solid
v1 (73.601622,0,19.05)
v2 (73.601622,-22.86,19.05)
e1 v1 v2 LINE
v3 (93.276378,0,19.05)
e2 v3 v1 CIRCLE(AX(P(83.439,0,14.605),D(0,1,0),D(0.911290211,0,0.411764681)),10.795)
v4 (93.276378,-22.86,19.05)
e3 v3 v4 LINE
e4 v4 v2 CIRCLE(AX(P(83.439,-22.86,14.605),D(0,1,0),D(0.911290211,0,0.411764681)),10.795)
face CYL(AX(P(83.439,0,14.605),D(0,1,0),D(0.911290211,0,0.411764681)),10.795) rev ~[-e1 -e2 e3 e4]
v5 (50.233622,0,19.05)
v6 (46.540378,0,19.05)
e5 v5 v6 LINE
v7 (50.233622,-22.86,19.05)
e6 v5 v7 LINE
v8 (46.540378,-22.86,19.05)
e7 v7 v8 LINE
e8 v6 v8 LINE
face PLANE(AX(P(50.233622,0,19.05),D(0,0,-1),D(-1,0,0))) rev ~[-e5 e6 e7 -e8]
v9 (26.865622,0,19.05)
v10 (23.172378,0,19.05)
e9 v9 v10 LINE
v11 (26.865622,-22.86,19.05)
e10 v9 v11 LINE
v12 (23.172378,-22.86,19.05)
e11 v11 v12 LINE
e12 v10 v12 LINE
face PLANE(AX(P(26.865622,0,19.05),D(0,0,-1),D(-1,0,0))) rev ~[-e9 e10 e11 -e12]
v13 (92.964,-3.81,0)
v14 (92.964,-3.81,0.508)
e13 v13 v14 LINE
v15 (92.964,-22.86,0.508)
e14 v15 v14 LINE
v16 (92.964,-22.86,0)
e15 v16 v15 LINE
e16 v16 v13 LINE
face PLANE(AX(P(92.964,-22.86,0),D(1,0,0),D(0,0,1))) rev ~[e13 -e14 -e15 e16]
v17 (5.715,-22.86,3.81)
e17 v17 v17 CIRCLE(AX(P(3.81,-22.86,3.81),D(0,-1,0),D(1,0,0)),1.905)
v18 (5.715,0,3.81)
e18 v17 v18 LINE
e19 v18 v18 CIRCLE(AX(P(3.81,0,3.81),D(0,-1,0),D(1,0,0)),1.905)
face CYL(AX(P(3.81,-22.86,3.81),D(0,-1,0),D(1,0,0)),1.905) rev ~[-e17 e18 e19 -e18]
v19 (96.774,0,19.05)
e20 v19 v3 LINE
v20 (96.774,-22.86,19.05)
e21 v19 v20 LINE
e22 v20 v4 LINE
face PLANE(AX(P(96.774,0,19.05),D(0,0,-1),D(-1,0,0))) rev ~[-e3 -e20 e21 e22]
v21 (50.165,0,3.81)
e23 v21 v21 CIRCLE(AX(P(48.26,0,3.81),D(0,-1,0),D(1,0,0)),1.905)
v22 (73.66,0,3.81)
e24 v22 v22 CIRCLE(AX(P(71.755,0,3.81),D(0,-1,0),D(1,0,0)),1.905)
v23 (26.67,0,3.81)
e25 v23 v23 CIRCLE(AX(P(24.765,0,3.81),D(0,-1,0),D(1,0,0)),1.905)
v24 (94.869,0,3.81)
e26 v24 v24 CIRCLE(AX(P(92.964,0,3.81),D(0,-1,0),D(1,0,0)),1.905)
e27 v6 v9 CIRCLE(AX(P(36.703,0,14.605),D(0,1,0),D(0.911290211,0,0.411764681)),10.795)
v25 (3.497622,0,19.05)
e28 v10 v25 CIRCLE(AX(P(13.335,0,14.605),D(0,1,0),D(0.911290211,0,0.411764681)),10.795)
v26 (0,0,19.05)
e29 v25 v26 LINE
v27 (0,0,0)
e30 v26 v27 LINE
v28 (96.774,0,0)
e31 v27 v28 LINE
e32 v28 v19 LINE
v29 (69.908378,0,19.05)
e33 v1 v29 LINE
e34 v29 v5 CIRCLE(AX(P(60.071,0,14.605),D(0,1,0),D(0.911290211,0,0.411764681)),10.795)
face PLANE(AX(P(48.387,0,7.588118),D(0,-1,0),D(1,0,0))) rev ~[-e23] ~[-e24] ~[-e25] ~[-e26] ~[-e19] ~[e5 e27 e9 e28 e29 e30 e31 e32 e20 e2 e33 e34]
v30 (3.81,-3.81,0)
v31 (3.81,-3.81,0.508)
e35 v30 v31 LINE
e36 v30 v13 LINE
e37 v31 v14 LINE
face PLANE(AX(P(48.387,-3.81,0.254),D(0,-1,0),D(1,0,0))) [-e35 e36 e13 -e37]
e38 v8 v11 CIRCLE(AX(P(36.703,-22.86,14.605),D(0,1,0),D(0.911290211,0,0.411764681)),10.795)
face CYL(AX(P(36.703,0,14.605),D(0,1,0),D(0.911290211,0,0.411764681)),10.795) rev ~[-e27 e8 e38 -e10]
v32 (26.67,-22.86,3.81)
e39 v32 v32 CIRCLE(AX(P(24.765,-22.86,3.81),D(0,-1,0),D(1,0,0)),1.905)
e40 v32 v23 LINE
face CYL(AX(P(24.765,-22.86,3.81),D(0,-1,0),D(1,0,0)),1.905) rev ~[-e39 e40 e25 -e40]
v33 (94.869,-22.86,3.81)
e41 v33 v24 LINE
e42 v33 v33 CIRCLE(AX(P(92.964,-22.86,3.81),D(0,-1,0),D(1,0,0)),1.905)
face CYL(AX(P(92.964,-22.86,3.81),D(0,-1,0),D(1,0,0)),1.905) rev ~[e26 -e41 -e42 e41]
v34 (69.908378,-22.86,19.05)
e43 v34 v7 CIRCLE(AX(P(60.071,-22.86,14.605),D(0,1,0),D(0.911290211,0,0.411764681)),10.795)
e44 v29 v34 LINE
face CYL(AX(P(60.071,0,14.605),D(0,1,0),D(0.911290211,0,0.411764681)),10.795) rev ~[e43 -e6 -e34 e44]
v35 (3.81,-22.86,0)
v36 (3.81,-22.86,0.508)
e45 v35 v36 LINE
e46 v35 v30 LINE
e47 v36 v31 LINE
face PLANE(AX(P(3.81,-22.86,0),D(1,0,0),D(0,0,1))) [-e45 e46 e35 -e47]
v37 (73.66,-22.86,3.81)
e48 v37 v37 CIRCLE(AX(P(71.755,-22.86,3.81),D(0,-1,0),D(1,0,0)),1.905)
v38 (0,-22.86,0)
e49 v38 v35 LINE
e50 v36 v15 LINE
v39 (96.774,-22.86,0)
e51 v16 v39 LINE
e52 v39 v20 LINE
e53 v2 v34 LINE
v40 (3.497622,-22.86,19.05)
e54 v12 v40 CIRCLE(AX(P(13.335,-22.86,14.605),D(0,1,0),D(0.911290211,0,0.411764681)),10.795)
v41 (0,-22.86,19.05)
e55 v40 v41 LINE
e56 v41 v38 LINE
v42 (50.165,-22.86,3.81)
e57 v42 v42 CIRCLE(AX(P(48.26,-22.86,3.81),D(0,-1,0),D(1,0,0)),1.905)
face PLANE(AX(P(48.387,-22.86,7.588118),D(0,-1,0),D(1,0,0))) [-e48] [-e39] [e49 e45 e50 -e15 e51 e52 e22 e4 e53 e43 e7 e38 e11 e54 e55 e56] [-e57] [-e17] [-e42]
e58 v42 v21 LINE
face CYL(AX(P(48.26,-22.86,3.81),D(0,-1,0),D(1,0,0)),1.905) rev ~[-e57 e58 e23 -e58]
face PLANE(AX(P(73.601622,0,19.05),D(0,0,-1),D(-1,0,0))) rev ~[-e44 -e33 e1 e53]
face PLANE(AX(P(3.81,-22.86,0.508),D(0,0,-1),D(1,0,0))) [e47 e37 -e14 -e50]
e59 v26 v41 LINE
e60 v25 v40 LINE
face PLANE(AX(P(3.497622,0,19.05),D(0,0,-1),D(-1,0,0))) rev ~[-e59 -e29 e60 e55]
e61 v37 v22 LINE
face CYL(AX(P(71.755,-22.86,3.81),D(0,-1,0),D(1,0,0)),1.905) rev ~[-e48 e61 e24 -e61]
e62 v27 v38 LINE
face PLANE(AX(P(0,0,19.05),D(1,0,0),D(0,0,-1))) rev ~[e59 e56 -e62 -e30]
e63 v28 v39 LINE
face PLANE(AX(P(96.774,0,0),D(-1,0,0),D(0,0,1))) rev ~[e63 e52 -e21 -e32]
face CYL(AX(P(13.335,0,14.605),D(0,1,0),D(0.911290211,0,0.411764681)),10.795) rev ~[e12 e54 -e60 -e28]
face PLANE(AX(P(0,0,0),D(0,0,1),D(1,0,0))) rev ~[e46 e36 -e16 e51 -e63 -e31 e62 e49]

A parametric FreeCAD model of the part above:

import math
import FreeCAD as App
import Part
import Sketcher
Q = App.Units.Quantity

doc = App.newDocument("Part")
body = doc.addObject("PartDesign::Body", "Body")

# Sketch on XZ plane
sketch1 = body.newObject("Sketcher::SketchObject", "Sketch")
sketch1.AttachmentSupport = (doc.getObject("XZ_Plane"), [""])
sketch1.MapMode = "FlatFace"
sketch1.addGeometry([
    Part.LineSegment(App.Vector(0, 19.1, 0), App.Vector(0, 0, 0)),  # 0
    Part.LineSegment(App.Vector(0, 0, 0), App.Vector(96.8, 0, 0)),  # 1
    Part.LineSegment(App.Vector(96.8, 0, 0), App.Vector(96.8, 19.1, 0)),  # 2
    Part.LineSegment(App.Vector(96.8, 19.1, 0), App.Vector(93.3, 19.1, 0)),  # 3
    Part.ArcOfCircle(Part.Circle(App.Vector(83.4, 14.6, 0), App.Vector(0, 0, 1), 10.8), math.radians(156), math.radians(384)),  # 4
    Part.LineSegment(App.Vector(73.6, 19.1, 0), App.Vector(69.9, 19.1, 0)),  # 5
    Part.ArcOfCircle(Part.Circle(App.Vector(60.1, 14.6, 0), App.Vector(0, 0, 1), 10.8), math.radians(156), math.radians(384)),  # 6
    Part.LineSegment(App.Vector(50.2, 19.1, 0), App.Vector(46.5, 19.1, 0)),  # 7
    Part.ArcOfCircle(Part.Circle(App.Vector(36.7, 14.6, 0), App.Vector(0, 0, 1), 10.8), math.radians(156), math.radians(384)),  # 8
    Part.LineSegment(App.Vector(26.9, 19.1, 0), App.Vector(23.2, 19.1, 0)),  # 9
    Part.ArcOfCircle(Part.Circle(App.Vector(13.3, 14.6, 0), App.Vector(0, 0, 1), 10.8), math.radians(156), math.radians(384)),  # 10
    Part.LineSegment(App.Vector(3.5, 19.1, 0), App.Vector(0, 19.1, 0)),  # 11
], False)
sketch1.addConstraint([
    Sketcher.Constraint("Coincident", 0, 2, 1, 1),
    Sketcher.Constraint("Coincident", 1, 2, 2, 1),
    Sketcher.Constraint("Coincident", 2, 2, 3, 1),
    Sketcher.Constraint("Coincident", 3, 2, 4, 2),
    Sketcher.Constraint("Coincident", 4, 1, 5, 1),
    Sketcher.Constraint("Coincident", 5, 2, 6, 2),
    Sketcher.Constraint("Coincident", 6, 1, 7, 1),
    Sketcher.Constraint("Coincident", 7, 2, 8, 2),
    Sketcher.Constraint("Coincident", 8, 1, 9, 1),
    Sketcher.Constraint("Coincident", 9, 2, 10, 2),
    Sketcher.Constraint("Coincident", 10, 1, 11, 1),
    Sketcher.Constraint("Coincident", 11, 2, 0, 1),
    Sketcher.Constraint("Vertical", 0),
    Sketcher.Constraint("Horizontal", 1),
    Sketcher.Constraint("Vertical", 2),
    Sketcher.Constraint("Horizontal", 3),
    Sketcher.Constraint("Horizontal", 5),
    Sketcher.Constraint("Horizontal", 7),
    Sketcher.Constraint("Horizontal", 9),
    Sketcher.Constraint("Horizontal", 11),
    Sketcher.Constraint("Coincident", 0, 2, -1, 1),
    Sketcher.Constraint("Equal", 4, 6),
    Sketcher.Constraint("Equal", 6, 8),
    Sketcher.Constraint("Equal", 8, 10),
    Sketcher.Constraint("Horizontal", 4, 3, 6, 3),
    Sketcher.Constraint("Horizontal", 6, 3, 8, 3),
    Sketcher.Constraint("Horizontal", 8, 3, 10, 3),
    Sketcher.Constraint("Horizontal", 3, 2, 4, 1),
    Sketcher.Constraint("Horizontal", 5, 2, 6, 1),
    Sketcher.Constraint("Horizontal", 7, 2, 8, 1),
    Sketcher.Constraint("Horizontal", 9, 2, 10, 1),
    Sketcher.Constraint("Equal", 5, 7),
    Sketcher.Constraint("Equal", 7, 9),
    Sketcher.Constraint("Equal", 3, 11),
    Sketcher.Constraint("Radius", 4, Q("0.425 in")),
    Sketcher.Constraint("DistanceX", 1, 1, 1, 2, Q("3.81 in")),
    Sketcher.Constraint("DistanceY", 0, 2, 0, 1, Q("0.75 in")),
    Sketcher.Constraint("DistanceX", 6, 3, 4, 3, Q("0.92 in")),
    Sketcher.Constraint("DistanceY", -1, 1, 4, 3, Q("0.575 in")),
])
pad1 = body.newObject("PartDesign::Pad", "Pad")
pad1.Profile = sketch1
pad1.Length = Q("0.9 in")

# Sketch on XZ plane
sketch2 = body.newObject("Sketcher::SketchObject", "Sketch001")
sketch2.AttachmentSupport = (doc.getObject("XZ_Plane"), [""])
sketch2.MapMode = "FlatFace"
sketch2.AttachmentOffset = App.Placement(App.Vector(0, 0, 0.9 * 25.4), App.Rotation())
sketch2.addGeometry([
    Part.Circle(App.Vector(24.8, 3.8, 0), App.Vector(0, 0, 1), 1.9),  # 0
    Part.Circle(App.Vector(48.3, 3.8, 0), App.Vector(0, 0, 1), 1.9),  # 1
    Part.Circle(App.Vector(71.8, 3.8, 0), App.Vector(0, 0, 1), 1.9),  # 2
    Part.Circle(App.Vector(3.8, 3.8, 0), App.Vector(0, 0, 1), 1.9),  # 3
    Part.Circle(App.Vector(93, 3.8, 0), App.Vector(0, 0, 1), 1.9),  # 4
], False)
sketch2.addConstraint([
    Sketcher.Constraint("Equal", 0, 1),
    Sketcher.Constraint("Equal", 1, 2),
    Sketcher.Constraint("Equal", 2, 3),
    Sketcher.Constraint("Equal", 3, 4),
    Sketcher.Constraint("Horizontal", 0, 3, 1, 3),
    Sketcher.Constraint("Horizontal", 1, 3, 2, 3),
    Sketcher.Constraint("Horizontal", 2, 3, 3, 3),
    Sketcher.Constraint("Horizontal", 3, 3, 4, 3),
    Sketcher.Constraint("Diameter", 0, Q("0.15 in")),
    Sketcher.Constraint("DistanceX", -1, 1, 1, 3, Q("1.9 in")),
    Sketcher.Constraint("DistanceY", -1, 1, 0, 3, Q("0.15 in")),
    Sketcher.Constraint("DistanceX", -1, 1, 3, 3, Q("0.15 in")),
    Sketcher.Constraint("DistanceX", -1, 1, 4, 3, Q("3.66 in")),
    Sketcher.Constraint("DistanceX", 0, 3, 2, 3, Q("1.85 in")),
    Sketcher.Constraint("DistanceX", -1, 1, 0, 3, Q("0.975 in")),
])
pocket1 = body.newObject("PartDesign::Pocket", "Pocket")
pocket1.Profile = sketch2
pocket1.Length = Q("2 in")

# Sketch on XZ plane
sketch3 = body.newObject("Sketcher::SketchObject", "Sketch002")
sketch3.AttachmentSupport = (doc.getObject("XZ_Plane"), [""])
sketch3.MapMode = "FlatFace"
sketch3.AttachmentOffset = App.Placement(App.Vector(0, 0, 0.9 * 25.4), App.Rotation())
sketch3.addGeometry([
    Part.LineSegment(App.Vector(3.8, 0.5, 0), App.Vector(3.8, 0, 0)),
    Part.LineSegment(App.Vector(3.8, 0, 0), App.Vector(93, 0, 0)),
    Part.LineSegment(App.Vector(93, 0, 0), App.Vector(93, 0.5, 0)),
    Part.LineSegment(App.Vector(93, 0.5, 0), App.Vector(3.8, 0.5, 0)),
], False)
sketch3.addConstraint([
    Sketcher.Constraint("Coincident", 0, 2, 1, 1),
    Sketcher.Constraint("Coincident", 1, 2, 2, 1),
    Sketcher.Constraint("Coincident", 2, 2, 3, 1),
    Sketcher.Constraint("Coincident", 3, 2, 0, 1),
    Sketcher.Constraint("Vertical", 0),
    Sketcher.Constraint("Horizontal", 1),
    Sketcher.Constraint("Vertical", 2),
    Sketcher.Constraint("Horizontal", 3),
    Sketcher.Constraint("PointOnObject", 0, 2, -1),
    Sketcher.Constraint("DistanceX", 1, 1, 1, 2, Q("3.51 in")),
    Sketcher.Constraint("DistanceY", 0, 2, 0, 1, Q("0.02 in")),
    Sketcher.Constraint("DistanceX", -1, 1, 0, 2, Q("0.15 in")),
])
pocket2 = body.newObject("PartDesign::Pocket", "Pocket001")
pocket2.Profile = sketch3
pocket2.Length = Q("0.75 in")

doc.recompute()
